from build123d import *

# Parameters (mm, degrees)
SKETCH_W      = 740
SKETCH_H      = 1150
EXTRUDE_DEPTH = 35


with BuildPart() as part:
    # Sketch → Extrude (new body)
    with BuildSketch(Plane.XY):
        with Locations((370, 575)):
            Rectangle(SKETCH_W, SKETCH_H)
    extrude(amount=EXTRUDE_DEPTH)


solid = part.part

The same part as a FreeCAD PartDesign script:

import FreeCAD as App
import Part
import Sketcher

V = App.Vector

doc = App.newDocument("Part")
body = doc.addObject("PartDesign::Body", "Body")

# Sketch on XY plane
sketch1 = doc.addObject("Sketcher::SketchObject", "Sketch")
body.addObject(sketch1)
sketch1.AttachmentSupport = (doc.XY_Plane, [""])
sketch1.MapMode = "FlatFace"
sketch1.addGeometry(Part.LineSegment(V(0, 1150, 0), V(0, 0, 0)), False)
sketch1.addGeometry(Part.LineSegment(V(0, 0, 0), V(740, 0, 0)), False)
sketch1.addGeometry(Part.LineSegment(V(740, 0, 0), V(740, 1150, 0)), False)
sketch1.addGeometry(Part.LineSegment(V(740, 1150, 0), V(0, 1150, 0)), False)
sketch1.addConstraint(Sketcher.Constraint("Coincident", 0, 2, 1, 1))
sketch1.addConstraint(Sketcher.Constraint("Coincident", 1, 2, 2, 1))
sketch1.addConstraint(Sketcher.Constraint("Coincident", 2, 2, 3, 1))
sketch1.addConstraint(Sketcher.Constraint("Coincident", 3, 2, 0, 1))
sketch1.addConstraint(Sketcher.Constraint("Vertical", 0))
sketch1.addConstraint(Sketcher.Constraint("Horizontal", 1))
sketch1.addConstraint(Sketcher.Constraint("Vertical", 2))
sketch1.addConstraint(Sketcher.Constraint("Horizontal", 3))
sketch1.addConstraint(Sketcher.Constraint("Coincident", 0, 2, -1, 1))
sketch1.addConstraint(Sketcher.Constraint("DistanceX", 1, 1, 1, 2, 740.0))
sketch1.addConstraint(Sketcher.Constraint("DistanceY", 0, 2, 0, 1, 1150.0))
pad1 = doc.addObject("PartDesign::Pad", "Pad")
body.addObject(pad1)
pad1.Profile = sketch1
pad1.Length = 35

doc.recompute()
